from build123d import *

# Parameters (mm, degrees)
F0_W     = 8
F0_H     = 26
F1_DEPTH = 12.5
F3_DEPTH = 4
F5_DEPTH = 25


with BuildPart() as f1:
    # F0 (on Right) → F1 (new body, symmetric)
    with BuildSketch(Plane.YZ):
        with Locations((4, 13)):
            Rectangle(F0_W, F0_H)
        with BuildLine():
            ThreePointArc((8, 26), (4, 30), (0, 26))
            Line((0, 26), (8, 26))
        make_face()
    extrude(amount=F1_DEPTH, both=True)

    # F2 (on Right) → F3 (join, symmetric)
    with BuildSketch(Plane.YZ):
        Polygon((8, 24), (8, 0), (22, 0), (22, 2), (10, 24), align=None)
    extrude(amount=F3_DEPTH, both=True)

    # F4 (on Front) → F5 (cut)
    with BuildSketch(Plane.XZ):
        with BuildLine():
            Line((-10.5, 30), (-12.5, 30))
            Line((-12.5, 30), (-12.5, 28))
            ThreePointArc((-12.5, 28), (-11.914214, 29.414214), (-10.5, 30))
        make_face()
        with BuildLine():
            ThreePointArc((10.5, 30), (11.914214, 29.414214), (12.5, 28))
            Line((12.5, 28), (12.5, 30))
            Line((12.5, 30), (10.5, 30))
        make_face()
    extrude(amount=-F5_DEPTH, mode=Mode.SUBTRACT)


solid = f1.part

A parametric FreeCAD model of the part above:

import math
import FreeCAD as App
import Part
import Sketcher
from FreeCAD import Vector


def add_polygon(sketch, points):
    """Adds a closed chain of lines whose ends are joined by coincident constraints."""
    first, n = sketch.GeometryCount, len(points)
    for a, b in zip(points, points[1:] + points[:1]):
        sketch.addGeometry(Part.LineSegment(App.Vector(*a, 0), App.Vector(*b, 0)), False)
    for i in range(n):
        sketch.addConstraint(Sketcher.Constraint("Coincident", first + i, 2, first + (i + 1) % n, 1))

doc = App.newDocument("Part")
body = doc.addObject("PartDesign::Body", "Body")

# Sketch on YZ plane
sketch1 = body.newObject("Sketcher::SketchObject", "Sketch")
sketch1.AttachmentSupport = (doc.getObject("YZ_Plane"), [""])
sketch1.MapMode = "FlatFace"
sketch1.addGeometry([
    Part.LineSegment(Vector(0, 26, 0), Vector(0, 0, 0)),
    Part.LineSegment(Vector(0, 0, 0), Vector(8, 0, 0)),
    Part.LineSegment(Vector(8, 0, 0), Vector(8, 26, 0)),
    Part.ArcOfCircle(Part.Circle(Vector(4, 26, 0), Vector(0, 0, 1), 4), math.radians(0), math.radians(180)),
], False)
sketch1.addConstraint([
    Sketcher.Constraint("Coincident", 0, 2, 1, 1),
    Sketcher.Constraint("Coincident", 1, 2, 2, 1),
    Sketcher.Constraint("Tangent", 2, 2, 3, 1),
    Sketcher.Constraint("Tangent", 3, 2, 0, 1),
    Sketcher.Constraint("Vertical", 0),
    Sketcher.Constraint("Horizontal", 1),
    Sketcher.Constraint("Vertical", 2),
    Sketcher.Constraint("Coincident", 0, 2, -1, 1),
    Sketcher.Constraint("Radius", 3, 4.0),
    Sketcher.Constraint("DistanceY", 0, 2, 0, 1, 26.0),
])
pad1 = body.newObject("PartDesign::Pad", "Pad")
pad1.Profile = sketch1
pad1.Length = 25
pad1.Midplane = True

# Sketch on YZ plane
sketch2 = body.newObject("Sketcher::SketchObject", "Sketch001")
sketch2.AttachmentSupport = (doc.getObject("YZ_Plane"), [""])
sketch2.MapMode = "FlatFace"
add_polygon(sketch2, [(8, 24), (8, 0), (22, 0), (22, 2), (10, 24)])  # lines 0-4
sketch2.addConstraint([
    Sketcher.Constraint("Vertical", 0),
    Sketcher.Constraint("Horizontal", 1),
    Sketcher.Constraint("Vertical", 2),
    Sketcher.Constraint("Horizontal", 4),
    Sketcher.Constraint("PointOnObject", 0, 2, -1),
    Sketcher.Constraint("Equal", 4, 2),
    Sketcher.Constraint("DistanceX", 1, 1, 1, 2, 14.0),
    Sketcher.Constraint("DistanceX", 4, 2, 4, 1, 2.0),
    Sketcher.Constraint("DistanceY", 0, 2, 0, 1, 24.0),
    Sketcher.Constraint("DistanceX", -1, 1, 0, 2, 8.0),
])
pad2 = body.newObject("PartDesign::Pad", "Pad001")
pad2.Profile = sketch2
pad2.Length = 8
pad2.Midplane = True

# Sketch on XZ plane
sketch3 = body.newObject("Sketcher::SketchObject", "Sketch002")
sketch3.AttachmentSupport = (doc.getObject("XZ_Plane"), [""])
sketch3.MapMode = "FlatFace"
sketch3.addGeometry([
    Part.LineSegment(Vector(-10.5, 30, 0), Vector(-12.5, 30, 0)),  # 0
    Part.LineSegment(Vector(-12.5, 30, 0), Vector(-12.5, 28, 0)),  # 1
    Part.ArcOfCircle(Part.Circle(Vector(-10.5, 28, 0), Vector(0, 0, 1), 2), math.radians(90), math.radians(180)),  # 2
    Part.ArcOfCircle(Part.Circle(Vector(10.5, 28, 0), Vector(0, 0, 1), 2), math.radians(0), math.radians(90)),  # 3
    Part.LineSegment(Vector(12.5, 28, 0), Vector(12.5, 30, 0)),  # 4
    Part.LineSegment(Vector(12.5, 30, 0), Vector(10.5, 30, 0)),  # 5
], False)
sketch3.addConstraint([
    Sketcher.Constraint("Coincident", 0, 2, 1, 1),
    Sketcher.Constraint("Tangent", 1, 2, 2, 2),
    Sketcher.Constraint("Tangent", 2, 1, 0, 1),
    Sketcher.Constraint("Tangent", 3, 1, 4, 1),
    Sketcher.Constraint("Coincident", 4, 2, 5, 1),
    Sketcher.Constraint("Tangent", 5, 2, 3, 2),
    Sketcher.Constraint("Horizontal", 0),
    Sketcher.Constraint("Vertical", 1),
    Sketcher.Constraint("Vertical", 4),
    Sketcher.Constraint("Horizontal", 5),
    Sketcher.Constraint("Equal", 2, 3),
    Sketcher.Constraint("Symmetric", 2, 3, 3, 3, -2),
    Sketcher.Constraint("Radius", 2, 1.999999),
    Sketcher.Constraint("DistanceY", -1, 1, 2, 3, 28.000001),
    Sketcher.Constraint("DistanceX", 0, 2, 3, 3, 23.000001),
])
pocket1 = body.newObject("PartDesign::Pocket", "Pocket")
pocket1.Profile = sketch3
pocket1.Length = 25

doc.recompute()
